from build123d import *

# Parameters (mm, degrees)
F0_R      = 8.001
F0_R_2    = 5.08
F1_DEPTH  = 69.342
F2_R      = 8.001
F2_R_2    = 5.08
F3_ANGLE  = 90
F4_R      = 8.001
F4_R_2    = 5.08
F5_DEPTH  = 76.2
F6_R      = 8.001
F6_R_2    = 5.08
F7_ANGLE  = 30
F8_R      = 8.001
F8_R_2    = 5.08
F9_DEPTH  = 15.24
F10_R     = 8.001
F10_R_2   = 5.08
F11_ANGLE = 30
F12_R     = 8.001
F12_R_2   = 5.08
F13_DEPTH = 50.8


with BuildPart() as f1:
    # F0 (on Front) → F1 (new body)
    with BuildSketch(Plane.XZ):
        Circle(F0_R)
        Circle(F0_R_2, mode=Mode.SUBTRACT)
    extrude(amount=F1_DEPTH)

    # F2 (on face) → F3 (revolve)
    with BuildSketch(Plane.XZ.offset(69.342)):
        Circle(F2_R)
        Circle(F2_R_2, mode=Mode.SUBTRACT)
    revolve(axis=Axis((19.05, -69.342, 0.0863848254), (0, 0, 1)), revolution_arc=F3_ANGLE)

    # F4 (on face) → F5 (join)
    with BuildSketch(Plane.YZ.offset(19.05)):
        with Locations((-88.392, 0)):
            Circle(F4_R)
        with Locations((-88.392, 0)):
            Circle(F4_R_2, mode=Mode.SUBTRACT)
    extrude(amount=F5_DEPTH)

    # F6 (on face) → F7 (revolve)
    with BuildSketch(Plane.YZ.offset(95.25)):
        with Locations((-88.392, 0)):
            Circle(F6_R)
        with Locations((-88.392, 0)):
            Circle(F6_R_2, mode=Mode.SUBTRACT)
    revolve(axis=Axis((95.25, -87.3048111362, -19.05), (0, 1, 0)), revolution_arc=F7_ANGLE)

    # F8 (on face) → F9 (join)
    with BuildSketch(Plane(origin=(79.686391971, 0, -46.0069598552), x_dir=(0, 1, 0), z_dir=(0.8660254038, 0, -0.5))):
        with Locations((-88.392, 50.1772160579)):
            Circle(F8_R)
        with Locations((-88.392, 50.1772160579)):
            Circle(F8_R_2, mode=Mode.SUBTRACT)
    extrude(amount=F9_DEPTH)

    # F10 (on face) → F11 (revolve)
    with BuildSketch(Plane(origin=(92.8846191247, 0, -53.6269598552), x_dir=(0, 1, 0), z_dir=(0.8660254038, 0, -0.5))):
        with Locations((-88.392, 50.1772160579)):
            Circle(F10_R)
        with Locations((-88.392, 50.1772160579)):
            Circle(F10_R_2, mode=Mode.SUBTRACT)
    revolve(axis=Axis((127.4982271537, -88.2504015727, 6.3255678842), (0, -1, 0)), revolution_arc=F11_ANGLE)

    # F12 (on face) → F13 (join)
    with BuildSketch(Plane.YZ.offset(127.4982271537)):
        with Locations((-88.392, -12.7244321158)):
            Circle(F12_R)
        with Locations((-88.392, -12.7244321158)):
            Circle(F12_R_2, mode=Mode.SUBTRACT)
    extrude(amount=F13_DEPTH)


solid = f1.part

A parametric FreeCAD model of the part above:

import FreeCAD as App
import Part
import Sketcher

V = App.Vector
Q = App.Units.Quantity

doc = App.newDocument("Part")
params = doc.addObject("Spreadsheet::Sheet", "Params")
for row, (alias, value) in enumerate([
    ("sketch1_diameter", "0.4 in"),
    ("sketch1_diameter2", "0.63 in"),
    ("pad1_length", "2.73 in"),
    ("sketch2_diameter", "0.4 in"),
    ("sketch2_diameter2", "0.63 in"),
    ("revolution_angle", "90 deg"),
    ("sketch3_diameter", "0.4 in"),
    ("sketch3_diameter2", "0.63 in"),
    ("pad2_length", "3 in"),
    ("sketch4_diameter", "0.4 in"),
    ("sketch4_diameter2", "0.63 in"),
    ("revolution2_angle", "30 deg"),
    ("sketch5_diameter", "0.4 in"),
    ("sketch5_diameter2", "0.63 in"),
    ("pad3_length", "0.6 in"),
    ("sketch6_diameter", "0.4 in"),
    ("sketch6_diameter2", "0.63 in"),
    ("revolution3_angle", "30 deg"),
    ("sketch7_diameter", "0.4 in"),
    ("sketch7_diameter2", "0.63 in"),
    ("pad4_length", "2 in"),
], start=1):
    params.set(f"A{row}", alias)
    params.set(f"B{row}", "=" + value)
    params.setAlias(f"B{row}", alias)

body = doc.addObject("PartDesign::Body", "Body")

# Sketch on XZ plane
sketch1 = doc.addObject("Sketcher::SketchObject", "Sketch")
body.addObject(sketch1)
sketch1.AttachmentSupport = (doc.XZ_Plane, [""])
sketch1.MapMode = "FlatFace"
sketch1.addGeometry(Part.Circle(V(0, 0, 0), V(0, 0, 1), 8), False)
sketch1.addGeometry(Part.Circle(V(0, 0, 0), V(0, 0, 1), 5), False)
sketch1.addConstraint(Sketcher.Constraint("Coincident", 0, 3, -1, 1))
sketch1.addConstraint(Sketcher.Constraint("Coincident", 1, 3, -1, 1))
sketch1.addConstraint(Sketcher.Constraint("Diameter", 1, Q("0.4 in")))
sketch1.addConstraint(Sketcher.Constraint("Diameter", 0, Q("0.63 in")))
sketch1.setExpression("Constraints[2]", "Params.sketch1_diameter")
sketch1.setExpression("Constraints[3]", "Params.sketch1_diameter2")
pad1 = doc.addObject("PartDesign::Pad", "Pad")
body.addObject(pad1)
pad1.Profile = sketch1
pad1.setExpression("Length", "Params.pad1_length")

# Sketch on XZ plane
sketch2 = doc.addObject("Sketcher::SketchObject", "Sketch001")
body.addObject(sketch2)
sketch2.AttachmentSupport = (doc.XZ_Plane, [""])
sketch2.MapMode = "FlatFace"
sketch2.AttachmentOffset = App.Placement(V(0, 0, 2.73 * 25.4), App.Rotation())
sketch2.addGeometry(Part.Circle(V(0, 0, 0), V(0, 0, 1), 8), False)
sketch2.addGeometry(Part.Circle(V(0, 0, 0), V(0, 0, 1), 5), False)
sketch2.addGeometry(Part.LineSegment(V(19, 0, 0), V(19, 10, 0)), True)  # axis
sketch2.addConstraint(Sketcher.Constraint("Vertical", 2))
sketch2.addConstraint(Sketcher.Constraint("Coincident", 0, 3, -1, 1))
sketch2.addConstraint(Sketcher.Constraint("Coincident", 1, 3, -1, 1))
sketch2.addConstraint(Sketcher.Constraint("PointOnObject", 2, 1, -1))
sketch2.addConstraint(Sketcher.Constraint("Diameter", 1, Q("0.4 in")))
sketch2.addConstraint(Sketcher.Constraint("Diameter", 0, Q("0.63 in")))
sketch2.addConstraint(Sketcher.Constraint("DistanceX", -1, 1, 2, 1, Q("0.75 in")))
sketch2.addConstraint(Sketcher.Constraint("DistanceY", 2, 1, 2, 2, 10.0))
sketch2.setExpression("Constraints[4]", "Params.sketch2_diameter")
sketch2.setExpression("Constraints[5]", "Params.sketch2_diameter2")
revolution = doc.addObject("PartDesign::Revolution", "Revolution")
body.addObject(revolution)
revolution.Profile = sketch2
revolution.ReferenceAxis = (sketch2, ["Axis0"])
revolution.setExpression("Angle", "Params.revolution_angle")

# Sketch on YZ plane
sketch3 = doc.addObject("Sketcher::SketchObject", "Sketch002")
body.addObject(sketch3)
sketch3.AttachmentSupport = (doc.YZ_Plane, [""])
sketch3.MapMode = "FlatFace"
sketch3.AttachmentOffset = App.Placement(V(0, 0, 0.75 * 25.4), App.Rotation())
sketch3.addGeometry(Part.Circle(V(-88, 0, 0), V(0, 0, 1), 8), False)
sketch3.addGeometry(Part.Circle(V(-88, 0, 0), V(0, 0, 1), 5), False)
sketch3.addConstraint(Sketcher.Constraint("Coincident", 1, 3, 0, 3))
sketch3.addConstraint(Sketcher.Constraint("PointOnObject", 0, 3, -1))
sketch3.addConstraint(Sketcher.Constraint("Diameter", 1, Q("0.4 in")))
sketch3.addConstraint(Sketcher.Constraint("Diameter", 0, Q("0.63 in")))
sketch3.addConstraint(Sketcher.Constraint("DistanceX", 0, 3, -1, 1, Q("3.48 in")))
sketch3.setExpression("Constraints[2]", "Params.sketch3_diameter")
sketch3.setExpression("Constraints[3]", "Params.sketch3_diameter2")
pad2 = doc.addObject("PartDesign::Pad", "Pad001")
body.addObject(pad2)
pad2.Profile = sketch3
pad2.setExpression("Length", "Params.pad2_length")

# Sketch on YZ plane
sketch4 = doc.addObject("Sketcher::SketchObject", "Sketch003")
body.addObject(sketch4)
sketch4.AttachmentSupport = (doc.YZ_Plane, [""])
sketch4.MapMode = "FlatFace"
sketch4.AttachmentOffset = App.Placement(V(0, 0, 3.75 * 25.4), App.Rotation())
sketch4.addGeometry(Part.Circle(V(-88, 0, 0), V(0, 0, 1), 8), False)
sketch4.addGeometry(Part.Circle(V(-88, 0, 0), V(0, 0, 1), 5), False)
sketch4.addGeometry(Part.LineSegment(V(-88, -19, 0), V(-78, -19, 0)), True)  # axis
sketch4.addConstraint(Sketcher.Constraint("Horizontal", 2))
sketch4.addConstraint(Sketcher.Constraint("Coincident", 1, 3, 0, 3))
sketch4.addConstraint(Sketcher.Constraint("PointOnObject", 0, 3, -1))
sketch4.addConstraint(Sketcher.Constraint("Vertical", 1, 3, 2, 1))
sketch4.addConstraint(Sketcher.Constraint("Diameter", 1, Q("0.4 in")))
sketch4.addConstraint(Sketcher.Constraint("Diameter", 0, Q("0.63 in")))
sketch4.addConstraint(Sketcher.Constraint("DistanceX", 0, 3, -1, 1, Q("3.48 in")))
sketch4.addConstraint(Sketcher.Constraint("DistanceY", 2, 1, -1, 1, Q("0.75 in")))
sketch4.addConstraint(Sketcher.Constraint("DistanceX", 2, 1, 2, 2, 10.0))
sketch4.setExpression("Constraints[4]", "Params.sketch4_diameter")
sketch4.setExpression("Constraints[5]", "Params.sketch4_diameter2")
revolution2 = doc.addObject("PartDesign::Revolution", "Revolution001")
body.addObject(revolution2)
revolution2.Profile = sketch4
revolution2.ReferenceAxis = (sketch4, ["Axis0"])
revolution2.setExpression("Angle", "Params.revolution2_angle")

# Sketch on an angled plane
sketch5 = doc.addObject("Sketcher::SketchObject", "Sketch004")
body.addObject(sketch5)
sketch5.Placement = App.Placement(V(79.686392, 0, -46.00696), App.Rotation(V(0, 1, 0), V(0.5, 0, 0.866025404), V(0.866025404, 0, -0.5), "ZXY"))
sketch5.addGeometry(Part.Circle(V(-88, 50, 0), V(0, 0, 1), 8), False)
sketch5.addGeometry(Part.Circle(V(-88, 50, 0), V(0, 0, 1), 5), False)
sketch5.addConstraint(Sketcher.Constraint("Coincident", 1, 3, 0, 3))
sketch5.addConstraint(Sketcher.Constraint("Diameter", 1, Q("0.4 in")))
sketch5.addConstraint(Sketcher.Constraint("Diameter", 0, Q("0.63 in")))
sketch5.addConstraint(Sketcher.Constraint("DistanceX", 0, 3, -1, 1, Q("3.48 in")))
sketch5.addConstraint(Sketcher.Constraint("DistanceY", -1, 1, 0, 3, 50.177216))
sketch5.setExpression("Constraints[1]", "Params.sketch5_diameter")
sketch5.setExpression("Constraints[2]", "Params.sketch5_diameter2")
pad3 = doc.addObject("PartDesign::Pad", "Pad002")
body.addObject(pad3)
pad3.Profile = sketch5
pad3.setExpression("Length", "Params.pad3_length")

# Sketch on an angled plane
sketch6 = doc.addObject("Sketcher::SketchObject", "Sketch005")
body.addObject(sketch6)
sketch6.Placement = App.Placement(V(92.884619, 0, -53.62696), App.Rotation(V(0, 1, 0), V(0.5, 0, 0.866025404), V(0.866025404, 0, -0.5), "ZXY"))
sketch6.addGeometry(Part.Circle(V(-88, 50, 0), V(0, 0, 1), 8), False)
sketch6.addGeometry(Part.Circle(V(-88, 50, 0), V(0, 0, 1), 5), False)
sketch6.addGeometry(Part.LineSegment(V(-88, 69, 0), V(-98, 69, 0)), True)  # axis
sketch6.addConstraint(Sketcher.Constraint("Horizontal", 2))
sketch6.addConstraint(Sketcher.Constraint("Coincident", 1, 3, 0, 3))
sketch6.addConstraint(Sketcher.Constraint("Vertical", 1, 3, 2, 1))
sketch6.addConstraint(Sketcher.Constraint("Diameter", 1, Q("0.4 in")))
sketch6.addConstraint(Sketcher.Constraint("Diameter", 0, Q("0.63 in")))
sketch6.addConstraint(Sketcher.Constraint("DistanceX", 0, 3, -1, 1, Q("3.48 in")))
sketch6.addConstraint(Sketcher.Constraint("DistanceY", 0, 3, 2, 1, Q("0.75 in")))
sketch6.addConstraint(Sketcher.Constraint("DistanceX", 2, 2, 2, 1, 10.0))
sketch6.addConstraint(Sketcher.Constraint("DistanceY", -1, 1, 0, 3, 50.177216))
sketch6.setExpression("Constraints[3]", "Params.sketch6_diameter")
sketch6.setExpression("Constraints[4]", "Params.sketch6_diameter2")
revolution3 = doc.addObject("PartDesign::Revolution", "Revolution002")
body.addObject(revolution3)
revolution3.Profile = sketch6
revolution3.ReferenceAxis = (sketch6, ["Axis0"])
revolution3.setExpression("Angle", "Params.revolution3_angle")

# Sketch on YZ plane
sketch7 = doc.addObject("Sketcher::SketchObject", "Sketch006")
body.addObject(sketch7)
sketch7.AttachmentSupport = (doc.YZ_Plane, [""])
sketch7.MapMode = "FlatFace"
sketch7.AttachmentOffset = App.Placement(V(0, 0, 127.498227), App.Rotation())
sketch7.addGeometry(Part.Circle(V(-88, -13, 0), V(0, 0, 1), 8), False)
sketch7.addGeometry(Part.Circle(V(-88, -13, 0), V(0, 0, 1), 5), False)
sketch7.addConstraint(Sketcher.Constraint("Coincident", 1, 3, 0, 3))
sketch7.addConstraint(Sketcher.Constraint("Diameter", 1, Q("0.4 in")))
sketch7.addConstraint(Sketcher.Constraint("Diameter", 0, Q("0.63 in")))
sketch7.addConstraint(Sketcher.Constraint("DistanceX", 0, 3, -1, 1, Q("3.48 in")))
sketch7.addConstraint(Sketcher.Constraint("DistanceY", 0, 3, -1, 1, 12.724432))
sketch7.setExpression("Constraints[1]", "Params.sketch7_diameter")
sketch7.setExpression("Constraints[2]", "Params.sketch7_diameter2")
pad4 = doc.addObject("PartDesign::Pad", "Pad003")
body.addObject(pad4)
pad4.Profile = sketch7
pad4.setExpression("Length", "Params.pad4_length")

doc.recompute()
